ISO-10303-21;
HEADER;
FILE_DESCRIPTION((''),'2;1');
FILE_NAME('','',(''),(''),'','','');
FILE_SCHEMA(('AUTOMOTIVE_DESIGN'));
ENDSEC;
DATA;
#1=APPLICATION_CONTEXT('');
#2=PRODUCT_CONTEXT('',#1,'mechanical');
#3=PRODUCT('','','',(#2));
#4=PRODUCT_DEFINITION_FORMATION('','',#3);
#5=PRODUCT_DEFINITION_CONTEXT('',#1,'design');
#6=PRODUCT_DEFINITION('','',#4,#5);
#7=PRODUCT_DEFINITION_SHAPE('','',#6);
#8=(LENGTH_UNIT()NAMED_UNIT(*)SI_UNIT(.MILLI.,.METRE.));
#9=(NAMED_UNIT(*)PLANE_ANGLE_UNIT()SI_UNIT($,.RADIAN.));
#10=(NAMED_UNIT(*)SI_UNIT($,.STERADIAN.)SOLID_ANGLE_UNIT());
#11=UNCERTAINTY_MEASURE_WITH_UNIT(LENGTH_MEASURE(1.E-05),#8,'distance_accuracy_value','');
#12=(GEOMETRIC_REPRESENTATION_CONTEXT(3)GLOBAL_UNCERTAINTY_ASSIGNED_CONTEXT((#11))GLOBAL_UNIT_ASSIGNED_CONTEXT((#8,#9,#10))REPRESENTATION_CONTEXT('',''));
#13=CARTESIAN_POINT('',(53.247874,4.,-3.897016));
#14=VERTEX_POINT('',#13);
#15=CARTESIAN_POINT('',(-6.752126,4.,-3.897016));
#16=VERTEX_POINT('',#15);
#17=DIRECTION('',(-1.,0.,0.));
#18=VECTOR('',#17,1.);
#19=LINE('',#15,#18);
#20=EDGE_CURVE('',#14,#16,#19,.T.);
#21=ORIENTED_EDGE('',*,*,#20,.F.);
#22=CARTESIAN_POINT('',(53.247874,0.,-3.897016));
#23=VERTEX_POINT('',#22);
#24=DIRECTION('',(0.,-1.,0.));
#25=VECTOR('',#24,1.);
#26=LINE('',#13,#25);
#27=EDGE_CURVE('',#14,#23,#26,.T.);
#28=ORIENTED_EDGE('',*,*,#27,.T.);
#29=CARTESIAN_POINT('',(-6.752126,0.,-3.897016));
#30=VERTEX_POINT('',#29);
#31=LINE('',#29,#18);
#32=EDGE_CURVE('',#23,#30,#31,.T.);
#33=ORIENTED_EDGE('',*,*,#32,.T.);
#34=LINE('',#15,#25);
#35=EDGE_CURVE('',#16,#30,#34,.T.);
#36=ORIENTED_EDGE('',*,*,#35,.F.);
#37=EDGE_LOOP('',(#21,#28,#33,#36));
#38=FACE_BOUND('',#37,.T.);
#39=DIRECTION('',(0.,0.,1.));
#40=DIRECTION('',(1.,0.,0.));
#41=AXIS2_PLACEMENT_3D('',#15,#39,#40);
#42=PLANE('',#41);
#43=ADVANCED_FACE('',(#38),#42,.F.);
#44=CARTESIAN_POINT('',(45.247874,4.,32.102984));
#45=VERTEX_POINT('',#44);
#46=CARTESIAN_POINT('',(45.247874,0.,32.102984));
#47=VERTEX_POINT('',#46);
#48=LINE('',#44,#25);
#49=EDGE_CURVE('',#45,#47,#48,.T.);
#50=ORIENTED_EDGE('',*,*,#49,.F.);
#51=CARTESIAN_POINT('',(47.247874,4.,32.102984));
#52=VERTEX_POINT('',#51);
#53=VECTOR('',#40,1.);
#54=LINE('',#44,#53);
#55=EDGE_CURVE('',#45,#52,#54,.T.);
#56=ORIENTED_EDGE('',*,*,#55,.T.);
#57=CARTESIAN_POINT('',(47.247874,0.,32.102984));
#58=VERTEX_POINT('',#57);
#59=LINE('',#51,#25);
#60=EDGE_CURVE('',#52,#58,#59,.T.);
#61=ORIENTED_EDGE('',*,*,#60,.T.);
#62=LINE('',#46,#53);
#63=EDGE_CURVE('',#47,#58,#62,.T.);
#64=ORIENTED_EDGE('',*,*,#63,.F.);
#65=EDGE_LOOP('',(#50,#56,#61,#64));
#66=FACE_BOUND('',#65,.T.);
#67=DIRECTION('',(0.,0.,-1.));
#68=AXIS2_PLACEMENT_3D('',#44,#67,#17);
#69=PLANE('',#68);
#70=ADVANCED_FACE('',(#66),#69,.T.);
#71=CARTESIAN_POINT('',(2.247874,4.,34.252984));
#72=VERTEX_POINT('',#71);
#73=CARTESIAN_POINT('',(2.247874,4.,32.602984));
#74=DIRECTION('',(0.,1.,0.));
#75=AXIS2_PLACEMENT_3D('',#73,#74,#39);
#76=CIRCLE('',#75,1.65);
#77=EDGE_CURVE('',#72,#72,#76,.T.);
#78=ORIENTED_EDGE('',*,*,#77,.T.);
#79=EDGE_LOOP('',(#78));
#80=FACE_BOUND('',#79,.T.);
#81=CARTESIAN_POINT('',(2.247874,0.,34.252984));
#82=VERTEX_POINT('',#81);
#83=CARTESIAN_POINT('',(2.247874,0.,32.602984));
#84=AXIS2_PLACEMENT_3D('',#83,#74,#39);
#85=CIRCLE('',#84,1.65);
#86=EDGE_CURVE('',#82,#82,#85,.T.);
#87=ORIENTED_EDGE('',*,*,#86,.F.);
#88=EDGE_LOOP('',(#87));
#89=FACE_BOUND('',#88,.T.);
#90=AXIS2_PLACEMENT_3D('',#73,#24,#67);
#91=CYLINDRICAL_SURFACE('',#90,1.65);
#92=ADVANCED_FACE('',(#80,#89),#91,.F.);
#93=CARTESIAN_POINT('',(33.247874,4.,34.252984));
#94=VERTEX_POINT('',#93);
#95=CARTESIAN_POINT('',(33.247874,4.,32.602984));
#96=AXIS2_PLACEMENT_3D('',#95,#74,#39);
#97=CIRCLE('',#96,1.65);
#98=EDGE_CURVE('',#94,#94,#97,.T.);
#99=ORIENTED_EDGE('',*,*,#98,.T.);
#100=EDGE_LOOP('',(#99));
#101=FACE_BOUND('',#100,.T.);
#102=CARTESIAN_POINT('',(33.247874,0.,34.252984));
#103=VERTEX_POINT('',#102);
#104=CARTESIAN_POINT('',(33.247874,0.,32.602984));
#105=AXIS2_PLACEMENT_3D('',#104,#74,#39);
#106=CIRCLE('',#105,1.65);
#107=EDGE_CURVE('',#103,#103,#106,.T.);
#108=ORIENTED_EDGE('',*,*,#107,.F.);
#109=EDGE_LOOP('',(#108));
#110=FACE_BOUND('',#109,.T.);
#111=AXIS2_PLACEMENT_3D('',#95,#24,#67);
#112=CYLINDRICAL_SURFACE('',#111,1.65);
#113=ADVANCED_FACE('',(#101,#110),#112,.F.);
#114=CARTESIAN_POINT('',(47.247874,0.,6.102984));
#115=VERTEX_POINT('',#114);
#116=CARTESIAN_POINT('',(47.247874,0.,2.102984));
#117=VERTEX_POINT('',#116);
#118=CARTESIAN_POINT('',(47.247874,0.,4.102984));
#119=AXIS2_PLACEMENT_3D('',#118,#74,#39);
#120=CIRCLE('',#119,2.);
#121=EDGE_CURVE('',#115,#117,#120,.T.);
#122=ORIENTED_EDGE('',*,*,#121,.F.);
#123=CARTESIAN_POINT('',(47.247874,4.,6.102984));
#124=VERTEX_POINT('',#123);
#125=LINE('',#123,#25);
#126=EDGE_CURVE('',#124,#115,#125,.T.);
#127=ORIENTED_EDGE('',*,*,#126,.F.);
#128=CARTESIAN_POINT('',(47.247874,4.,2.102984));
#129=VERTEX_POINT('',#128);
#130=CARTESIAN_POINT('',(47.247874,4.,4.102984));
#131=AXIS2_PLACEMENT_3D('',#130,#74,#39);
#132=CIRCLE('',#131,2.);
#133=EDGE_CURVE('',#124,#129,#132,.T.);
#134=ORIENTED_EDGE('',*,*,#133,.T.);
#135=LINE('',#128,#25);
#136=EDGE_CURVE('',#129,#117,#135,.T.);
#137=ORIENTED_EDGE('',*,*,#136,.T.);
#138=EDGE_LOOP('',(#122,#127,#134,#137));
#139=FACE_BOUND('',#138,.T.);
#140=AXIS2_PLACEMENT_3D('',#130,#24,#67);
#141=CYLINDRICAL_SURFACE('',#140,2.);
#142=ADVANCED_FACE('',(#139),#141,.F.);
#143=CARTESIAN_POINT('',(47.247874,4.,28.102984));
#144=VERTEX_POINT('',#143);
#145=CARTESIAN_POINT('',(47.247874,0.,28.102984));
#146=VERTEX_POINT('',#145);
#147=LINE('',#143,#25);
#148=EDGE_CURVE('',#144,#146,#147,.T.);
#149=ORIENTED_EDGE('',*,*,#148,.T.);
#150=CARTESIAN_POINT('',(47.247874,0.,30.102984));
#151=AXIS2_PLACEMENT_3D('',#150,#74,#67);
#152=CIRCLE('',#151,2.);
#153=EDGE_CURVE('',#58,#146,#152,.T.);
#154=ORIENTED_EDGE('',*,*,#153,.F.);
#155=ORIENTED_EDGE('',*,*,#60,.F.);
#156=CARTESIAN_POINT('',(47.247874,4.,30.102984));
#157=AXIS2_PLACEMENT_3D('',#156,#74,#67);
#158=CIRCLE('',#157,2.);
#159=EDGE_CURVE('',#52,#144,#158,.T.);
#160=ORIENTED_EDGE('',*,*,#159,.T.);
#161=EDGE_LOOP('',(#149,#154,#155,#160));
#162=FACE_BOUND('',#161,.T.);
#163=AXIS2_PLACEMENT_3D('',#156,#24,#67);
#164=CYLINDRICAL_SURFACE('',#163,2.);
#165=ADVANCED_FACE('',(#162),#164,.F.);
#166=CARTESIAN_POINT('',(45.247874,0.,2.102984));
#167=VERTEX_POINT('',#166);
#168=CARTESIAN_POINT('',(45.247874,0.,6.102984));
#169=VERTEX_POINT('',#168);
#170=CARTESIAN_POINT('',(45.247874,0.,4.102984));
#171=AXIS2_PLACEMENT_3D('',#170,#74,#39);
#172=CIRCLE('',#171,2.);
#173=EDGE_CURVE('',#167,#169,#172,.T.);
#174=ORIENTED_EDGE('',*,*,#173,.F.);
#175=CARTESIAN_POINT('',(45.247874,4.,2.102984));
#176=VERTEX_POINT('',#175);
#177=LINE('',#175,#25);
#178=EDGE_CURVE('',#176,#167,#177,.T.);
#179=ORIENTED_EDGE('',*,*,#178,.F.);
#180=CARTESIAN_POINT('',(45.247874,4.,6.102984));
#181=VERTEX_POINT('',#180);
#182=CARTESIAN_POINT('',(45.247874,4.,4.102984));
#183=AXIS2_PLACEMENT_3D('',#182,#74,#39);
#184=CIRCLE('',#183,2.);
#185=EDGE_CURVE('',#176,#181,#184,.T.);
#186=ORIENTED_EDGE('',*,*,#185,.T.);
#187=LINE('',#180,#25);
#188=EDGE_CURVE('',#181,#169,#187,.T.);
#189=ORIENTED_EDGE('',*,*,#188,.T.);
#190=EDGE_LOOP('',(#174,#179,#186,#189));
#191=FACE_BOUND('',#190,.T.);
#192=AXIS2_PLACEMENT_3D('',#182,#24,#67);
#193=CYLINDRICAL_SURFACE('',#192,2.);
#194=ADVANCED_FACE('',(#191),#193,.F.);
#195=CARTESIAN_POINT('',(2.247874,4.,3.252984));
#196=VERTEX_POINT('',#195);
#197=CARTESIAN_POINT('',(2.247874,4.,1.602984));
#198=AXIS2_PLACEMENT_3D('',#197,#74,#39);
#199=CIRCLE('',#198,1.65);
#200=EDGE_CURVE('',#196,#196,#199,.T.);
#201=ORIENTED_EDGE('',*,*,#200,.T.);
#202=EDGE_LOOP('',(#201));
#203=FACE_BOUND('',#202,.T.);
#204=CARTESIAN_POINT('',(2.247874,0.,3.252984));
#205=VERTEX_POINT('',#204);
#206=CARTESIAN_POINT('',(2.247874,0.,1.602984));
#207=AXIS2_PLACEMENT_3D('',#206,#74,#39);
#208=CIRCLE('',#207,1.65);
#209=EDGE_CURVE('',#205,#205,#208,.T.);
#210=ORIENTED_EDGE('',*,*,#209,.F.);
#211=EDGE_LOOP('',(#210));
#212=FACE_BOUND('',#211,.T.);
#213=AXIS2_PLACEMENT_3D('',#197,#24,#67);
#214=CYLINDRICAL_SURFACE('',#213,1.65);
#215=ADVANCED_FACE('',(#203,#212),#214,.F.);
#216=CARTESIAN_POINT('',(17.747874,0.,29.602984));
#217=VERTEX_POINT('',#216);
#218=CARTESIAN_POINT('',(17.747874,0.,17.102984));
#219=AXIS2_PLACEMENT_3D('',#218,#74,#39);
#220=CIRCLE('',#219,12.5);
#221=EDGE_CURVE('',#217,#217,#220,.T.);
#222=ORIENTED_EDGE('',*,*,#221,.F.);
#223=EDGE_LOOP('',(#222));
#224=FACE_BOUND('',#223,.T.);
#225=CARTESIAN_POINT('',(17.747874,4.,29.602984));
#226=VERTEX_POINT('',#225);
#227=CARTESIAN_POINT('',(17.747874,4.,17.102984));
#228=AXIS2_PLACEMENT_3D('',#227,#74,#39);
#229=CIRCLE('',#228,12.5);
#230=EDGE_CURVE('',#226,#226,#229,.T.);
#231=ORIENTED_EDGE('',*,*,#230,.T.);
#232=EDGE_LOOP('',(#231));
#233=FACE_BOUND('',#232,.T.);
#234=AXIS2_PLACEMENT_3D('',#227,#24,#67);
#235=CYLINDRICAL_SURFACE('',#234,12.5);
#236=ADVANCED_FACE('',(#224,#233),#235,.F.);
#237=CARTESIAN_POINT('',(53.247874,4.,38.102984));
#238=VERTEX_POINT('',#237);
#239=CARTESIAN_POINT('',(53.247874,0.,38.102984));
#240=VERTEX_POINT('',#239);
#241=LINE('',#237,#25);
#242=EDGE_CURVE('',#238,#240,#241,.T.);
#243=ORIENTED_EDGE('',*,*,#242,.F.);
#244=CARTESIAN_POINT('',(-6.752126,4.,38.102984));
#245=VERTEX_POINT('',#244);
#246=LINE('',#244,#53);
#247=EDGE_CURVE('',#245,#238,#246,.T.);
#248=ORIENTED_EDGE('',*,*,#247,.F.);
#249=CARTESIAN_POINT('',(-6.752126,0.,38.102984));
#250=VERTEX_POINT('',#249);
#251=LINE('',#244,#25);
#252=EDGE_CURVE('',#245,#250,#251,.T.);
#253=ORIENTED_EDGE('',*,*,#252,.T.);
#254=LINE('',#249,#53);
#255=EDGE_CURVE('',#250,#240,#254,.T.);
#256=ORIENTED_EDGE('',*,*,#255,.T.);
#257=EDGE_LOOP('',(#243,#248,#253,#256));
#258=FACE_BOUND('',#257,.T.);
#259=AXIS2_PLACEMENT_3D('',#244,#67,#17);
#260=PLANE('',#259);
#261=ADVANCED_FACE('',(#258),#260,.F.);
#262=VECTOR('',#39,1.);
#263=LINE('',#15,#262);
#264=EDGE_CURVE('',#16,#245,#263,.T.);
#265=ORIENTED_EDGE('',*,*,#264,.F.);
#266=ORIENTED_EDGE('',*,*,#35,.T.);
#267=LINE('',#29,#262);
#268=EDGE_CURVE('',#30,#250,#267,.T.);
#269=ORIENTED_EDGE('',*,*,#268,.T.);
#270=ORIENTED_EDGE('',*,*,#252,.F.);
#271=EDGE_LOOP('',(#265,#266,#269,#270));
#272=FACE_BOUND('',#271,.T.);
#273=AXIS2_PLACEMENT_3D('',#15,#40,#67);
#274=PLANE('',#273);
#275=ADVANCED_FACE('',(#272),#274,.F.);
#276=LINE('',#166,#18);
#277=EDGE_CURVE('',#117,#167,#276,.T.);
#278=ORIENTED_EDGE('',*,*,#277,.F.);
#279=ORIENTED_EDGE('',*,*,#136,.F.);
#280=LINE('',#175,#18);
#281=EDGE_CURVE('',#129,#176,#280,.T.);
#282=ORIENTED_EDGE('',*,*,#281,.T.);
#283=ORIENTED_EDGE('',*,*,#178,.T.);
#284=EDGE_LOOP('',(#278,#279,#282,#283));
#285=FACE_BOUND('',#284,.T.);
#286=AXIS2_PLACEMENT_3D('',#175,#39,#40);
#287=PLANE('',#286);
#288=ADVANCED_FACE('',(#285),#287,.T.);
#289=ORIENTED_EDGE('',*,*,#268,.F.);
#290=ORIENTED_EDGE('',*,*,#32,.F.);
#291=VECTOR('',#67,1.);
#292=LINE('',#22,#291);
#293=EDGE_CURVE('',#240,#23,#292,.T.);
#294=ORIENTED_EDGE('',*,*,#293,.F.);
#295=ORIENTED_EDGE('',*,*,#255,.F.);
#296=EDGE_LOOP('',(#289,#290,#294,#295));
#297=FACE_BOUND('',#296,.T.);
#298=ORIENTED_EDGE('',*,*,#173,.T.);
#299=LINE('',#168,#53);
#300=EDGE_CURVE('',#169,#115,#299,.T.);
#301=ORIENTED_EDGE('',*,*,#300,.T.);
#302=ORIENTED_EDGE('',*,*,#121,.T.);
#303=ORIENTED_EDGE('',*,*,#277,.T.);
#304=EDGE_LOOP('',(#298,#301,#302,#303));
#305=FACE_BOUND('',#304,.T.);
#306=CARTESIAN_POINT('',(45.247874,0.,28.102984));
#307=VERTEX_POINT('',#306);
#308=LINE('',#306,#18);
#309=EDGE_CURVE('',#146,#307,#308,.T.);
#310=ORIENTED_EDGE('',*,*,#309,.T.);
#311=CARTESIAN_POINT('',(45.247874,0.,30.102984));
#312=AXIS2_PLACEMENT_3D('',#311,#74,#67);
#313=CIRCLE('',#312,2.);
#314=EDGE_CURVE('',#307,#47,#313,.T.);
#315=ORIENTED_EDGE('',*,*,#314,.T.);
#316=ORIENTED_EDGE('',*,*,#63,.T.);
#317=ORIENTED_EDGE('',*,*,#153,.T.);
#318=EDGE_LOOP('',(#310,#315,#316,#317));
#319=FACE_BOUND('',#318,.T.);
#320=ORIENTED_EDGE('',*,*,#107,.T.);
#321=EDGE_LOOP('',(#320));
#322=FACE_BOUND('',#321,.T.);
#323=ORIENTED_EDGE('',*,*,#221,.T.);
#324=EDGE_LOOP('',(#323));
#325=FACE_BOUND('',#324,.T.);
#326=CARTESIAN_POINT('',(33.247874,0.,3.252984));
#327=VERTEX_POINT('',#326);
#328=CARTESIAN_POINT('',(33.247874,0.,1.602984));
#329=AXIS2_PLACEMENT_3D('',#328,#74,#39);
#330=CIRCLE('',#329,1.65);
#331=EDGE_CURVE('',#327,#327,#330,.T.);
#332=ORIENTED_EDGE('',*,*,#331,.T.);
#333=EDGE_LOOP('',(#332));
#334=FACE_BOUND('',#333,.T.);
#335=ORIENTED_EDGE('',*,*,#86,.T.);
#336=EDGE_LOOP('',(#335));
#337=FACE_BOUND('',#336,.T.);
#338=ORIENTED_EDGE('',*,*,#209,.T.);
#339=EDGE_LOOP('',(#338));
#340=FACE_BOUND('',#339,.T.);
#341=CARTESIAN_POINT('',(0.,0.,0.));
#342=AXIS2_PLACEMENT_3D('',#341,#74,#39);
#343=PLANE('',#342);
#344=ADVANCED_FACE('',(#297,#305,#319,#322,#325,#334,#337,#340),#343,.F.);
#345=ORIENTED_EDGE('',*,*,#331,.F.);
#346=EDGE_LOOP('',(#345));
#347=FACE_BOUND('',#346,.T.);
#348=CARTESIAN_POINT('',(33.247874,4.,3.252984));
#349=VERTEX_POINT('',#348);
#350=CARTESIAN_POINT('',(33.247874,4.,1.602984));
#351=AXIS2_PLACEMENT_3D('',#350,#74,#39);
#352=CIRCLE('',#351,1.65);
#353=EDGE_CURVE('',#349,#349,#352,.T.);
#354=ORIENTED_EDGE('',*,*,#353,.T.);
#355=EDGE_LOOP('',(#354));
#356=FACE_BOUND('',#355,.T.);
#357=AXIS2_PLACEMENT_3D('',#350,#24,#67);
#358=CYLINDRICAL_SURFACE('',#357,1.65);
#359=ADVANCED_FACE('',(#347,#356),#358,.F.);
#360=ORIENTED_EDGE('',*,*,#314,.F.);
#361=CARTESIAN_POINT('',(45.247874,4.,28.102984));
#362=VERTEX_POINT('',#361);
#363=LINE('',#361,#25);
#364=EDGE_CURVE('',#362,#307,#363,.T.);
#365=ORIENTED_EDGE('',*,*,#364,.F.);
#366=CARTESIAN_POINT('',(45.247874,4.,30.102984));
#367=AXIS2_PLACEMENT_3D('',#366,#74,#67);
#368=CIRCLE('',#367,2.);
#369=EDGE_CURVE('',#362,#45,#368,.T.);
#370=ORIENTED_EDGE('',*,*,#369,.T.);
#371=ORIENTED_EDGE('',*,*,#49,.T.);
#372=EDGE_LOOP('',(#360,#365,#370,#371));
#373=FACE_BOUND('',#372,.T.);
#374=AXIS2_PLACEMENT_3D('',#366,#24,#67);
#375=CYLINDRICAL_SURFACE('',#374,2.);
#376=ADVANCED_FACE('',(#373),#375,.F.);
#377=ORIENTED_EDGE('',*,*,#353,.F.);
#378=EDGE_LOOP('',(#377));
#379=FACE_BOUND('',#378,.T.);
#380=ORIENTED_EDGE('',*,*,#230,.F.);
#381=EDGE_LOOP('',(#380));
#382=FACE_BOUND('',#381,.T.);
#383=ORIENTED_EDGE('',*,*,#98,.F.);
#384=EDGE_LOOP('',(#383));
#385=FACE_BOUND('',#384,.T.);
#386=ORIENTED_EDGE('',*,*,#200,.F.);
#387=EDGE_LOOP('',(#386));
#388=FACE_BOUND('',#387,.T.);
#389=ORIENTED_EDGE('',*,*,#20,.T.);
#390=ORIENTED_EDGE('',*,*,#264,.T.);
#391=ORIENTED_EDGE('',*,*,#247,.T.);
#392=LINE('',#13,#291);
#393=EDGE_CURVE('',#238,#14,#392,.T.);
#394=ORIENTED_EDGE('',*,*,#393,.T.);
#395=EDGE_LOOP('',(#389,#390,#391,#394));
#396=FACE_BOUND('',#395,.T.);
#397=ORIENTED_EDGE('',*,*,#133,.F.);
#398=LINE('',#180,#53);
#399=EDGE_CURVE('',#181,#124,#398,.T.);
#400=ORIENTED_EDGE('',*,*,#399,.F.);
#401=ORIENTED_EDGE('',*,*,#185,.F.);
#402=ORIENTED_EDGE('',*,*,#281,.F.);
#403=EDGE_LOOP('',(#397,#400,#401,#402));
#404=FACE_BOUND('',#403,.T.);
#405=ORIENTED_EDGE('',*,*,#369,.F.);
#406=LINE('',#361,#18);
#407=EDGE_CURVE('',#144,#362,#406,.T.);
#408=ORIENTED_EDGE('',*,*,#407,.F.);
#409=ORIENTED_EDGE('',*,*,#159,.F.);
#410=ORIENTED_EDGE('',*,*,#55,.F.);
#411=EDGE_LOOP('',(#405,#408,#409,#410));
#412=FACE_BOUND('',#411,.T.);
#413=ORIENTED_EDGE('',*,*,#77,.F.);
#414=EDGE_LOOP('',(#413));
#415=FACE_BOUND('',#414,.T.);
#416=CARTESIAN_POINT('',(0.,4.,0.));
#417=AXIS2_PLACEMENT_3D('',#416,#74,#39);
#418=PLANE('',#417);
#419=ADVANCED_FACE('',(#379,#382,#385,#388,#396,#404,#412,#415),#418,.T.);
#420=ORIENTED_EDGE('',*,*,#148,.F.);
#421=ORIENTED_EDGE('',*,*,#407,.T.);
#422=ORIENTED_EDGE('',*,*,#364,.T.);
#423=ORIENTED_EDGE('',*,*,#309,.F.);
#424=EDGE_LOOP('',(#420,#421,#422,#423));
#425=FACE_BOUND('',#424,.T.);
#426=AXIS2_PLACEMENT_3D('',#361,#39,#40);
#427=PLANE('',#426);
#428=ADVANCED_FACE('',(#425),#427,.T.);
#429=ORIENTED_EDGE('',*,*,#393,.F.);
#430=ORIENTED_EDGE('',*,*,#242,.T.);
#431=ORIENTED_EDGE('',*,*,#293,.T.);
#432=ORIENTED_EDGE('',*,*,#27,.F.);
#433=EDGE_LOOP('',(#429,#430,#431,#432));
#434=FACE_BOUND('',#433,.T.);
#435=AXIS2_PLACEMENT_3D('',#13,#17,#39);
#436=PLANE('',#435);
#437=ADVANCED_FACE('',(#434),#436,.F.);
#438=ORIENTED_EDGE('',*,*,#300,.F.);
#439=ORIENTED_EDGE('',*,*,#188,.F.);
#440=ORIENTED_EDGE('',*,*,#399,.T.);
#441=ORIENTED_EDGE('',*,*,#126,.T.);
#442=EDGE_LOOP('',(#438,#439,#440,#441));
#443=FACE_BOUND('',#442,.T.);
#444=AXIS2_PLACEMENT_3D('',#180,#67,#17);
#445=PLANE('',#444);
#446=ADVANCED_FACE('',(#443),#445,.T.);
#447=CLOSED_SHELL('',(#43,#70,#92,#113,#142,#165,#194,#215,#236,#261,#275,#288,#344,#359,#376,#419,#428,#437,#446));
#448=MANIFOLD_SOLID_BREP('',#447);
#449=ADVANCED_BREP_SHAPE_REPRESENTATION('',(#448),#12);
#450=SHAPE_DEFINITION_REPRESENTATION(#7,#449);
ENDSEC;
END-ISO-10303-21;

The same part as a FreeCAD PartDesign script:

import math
import FreeCAD as App
import Part
import Sketcher

V = App.Vector
Q = App.Units.Quantity


def add_polygon(sketch, points):
    """Adds a closed chain of lines whose ends are joined by coincident constraints."""
    first, n = sketch.GeometryCount, len(points)
    for a, b in zip(points, points[1:] + points[:1]):
        sketch.addGeometry(Part.LineSegment(App.Vector(*a, 0), App.Vector(*b, 0)), False)
    for i in range(n):
        sketch.addConstraint(Sketcher.Constraint("Coincident", first + i, 2, first + (i + 1) % n, 1))

doc = App.newDocument("Part")
body = doc.addObject("PartDesign::Body", "Body")

sketch1 = body.newObject("Sketcher::SketchObject", "Sketch")
sketch1.AttachmentSupport = (doc.getObject("XZ_Plane"), [""])
sketch1.MapMode = "FlatFace"
add_polygon(sketch1, [(-6.8, -3.9), (-6.8, 38.1), (53.2, 38.1), (53.2, -3.9)])
sketch1.addGeometry(Part.Circle(V(2.2, 32.6, 0), V(0, 0, 1), 1.6), False)
sketch1.addGeometry(Part.Circle(V(33.2, 32.6, 0), V(0, 0, 1), 1.6), False)
sketch1.addGeometry(Part.LineSegment(V(47.2, 32.1, 0), V(45.2, 32.1, 0)), False)
sketch1.addGeometry(Part.ArcOfCircle(Part.Circle(V(45.2, 30.1, 0), V(0, 0, 1), 2), math.radians(90), math.radians(270)), False)
sketch1.addGeometry(Part.LineSegment(V(45.2, 28.1, 0), V(47.2, 28.1, 0)), False)
sketch1.addGeometry(Part.ArcOfCircle(Part.Circle(V(47.2, 30.1, 0), V(0, 0, 1), 2), math.radians(-90), math.radians(90)), False)
sketch1.addGeometry(Part.Circle(V(17.7, 17.1, 0), V(0, 0, 1), 12.5), False)
sketch1.addGeometry(Part.Circle(V(2.2, 1.6, 0), V(0, 0, 1), 1.6), False)
sketch1.addGeometry(Part.Circle(V(33.2, 1.6, 0), V(0, 0, 1), 1.6), False)
sketch1.addGeometry(Part.ArcOfCircle(Part.Circle(V(45.2, 4.1, 0), V(0, 0, 1), 2), math.radians(90), math.radians(270)), False)
sketch1.addGeometry(Part.LineSegment(V(45.2, 2.1, 0), V(47.2, 2.1, 0)), False)
sketch1.addGeometry(Part.ArcOfCircle(Part.Circle(V(47.2, 4.1, 0), V(0, 0, 1), 2), math.radians(-90), math.radians(90)), False)
sketch1.addGeometry(Part.LineSegment(V(47.2, 6.1, 0), V(45.2, 6.1, 0)), False)
sketch1.addConstraint([
    Sketcher.Constraint("Tangent", 6, 2, 7, 1),
    Sketcher.Constraint("Tangent", 7, 2, 8, 1),
    Sketcher.Constraint("Tangent", 8, 2, 9, 1),
    Sketcher.Constraint("Tangent", 9, 2, 6, 1),
    Sketcher.Constraint("Tangent", 13, 2, 14, 1),
    Sketcher.Constraint("Tangent", 14, 2, 15, 1),
    Sketcher.Constraint("Tangent", 15, 2, 16, 1),
    Sketcher.Constraint("Tangent", 16, 2, 13, 1),
    Sketcher.Constraint("Vertical", 0),
    Sketcher.Constraint("Horizontal", 1),
    Sketcher.Constraint("Vertical", 2),
    Sketcher.Constraint("Horizontal", 3),
    Sketcher.Constraint("Horizontal", 6),
    Sketcher.Constraint("Horizontal", 8),
    Sketcher.Constraint("Horizontal", 14),
    Sketcher.Constraint("Horizontal", 16),
    Sketcher.Constraint("Equal", 4, 5),
    Sketcher.Constraint("Equal", 5, 11),
    Sketcher.Constraint("Equal", 11, 12),
    Sketcher.Constraint("Equal", 9, 13),
    Sketcher.Constraint("Horizontal", 4, 3, 5, 3),
    Sketcher.Constraint("Horizontal", 11, 3, 12, 3),
    Sketcher.Constraint("Vertical", 4, 3, 11, 3),
    Sketcher.Constraint("Vertical", 5, 3, 12, 3),
    Sketcher.Constraint("Vertical", 7, 3, 13, 3),
    Sketcher.Constraint("Vertical", 9, 3, 15, 3),
    Sketcher.Constraint("Diameter", 10, Q("25 mm")),
    Sketcher.Constraint("Radius", 7, Q("2 mm")),
    Sketcher.Constraint("Diameter", 4, Q("3.3 mm")),
    Sketcher.Constraint("DistanceX", 1, 1, 1, 2, Q("60 mm")),
    Sketcher.Constraint("DistanceX", 6, 2, 6, 1, Q("2 mm")),
    Sketcher.Constraint("DistanceY", 0, 1, 0, 2, Q("42 mm")),
    Sketcher.Constraint("DistanceX", 4, 3, 5, 3, Q("31 mm")),
    Sketcher.Constraint("DistanceX", 5, 3, 7, 3, Q("12 mm")),
    Sketcher.Constraint("DistanceY", 10, 3, 7, 3, Q("13 mm")),
    Sketcher.Constraint("DistanceY", 11, 3, 4, 3, Q("31 mm")),
    Sketcher.Constraint("DistanceY", 13, 3, 7, 3, Q("26 mm")),
    Sketcher.Constraint("DistanceX", 0, 2, 4, 3, Q("9 mm")),
    Sketcher.Constraint("DistanceY", 10, 3, 0, 2, Q("21 mm")),
    Sketcher.Constraint("DistanceY", 7, 3, 5, 3, Q("2.5 mm")),
    Sketcher.Constraint("DistanceX", 4, 3, 10, 3, Q("15.5 mm")),
    Sketcher.Constraint("DistanceX", -1, 1, 4, 3, Q("2.247874 mm")),
    Sketcher.Constraint("DistanceY", -1, 1, 4, 3, Q("32.602984 mm")),
])
pad1 = body.newObject("PartDesign::Pad", "Pad")
pad1.Profile = sketch1
pad1.Length = 4
pad1.Reversed = True

doc.recompute()
